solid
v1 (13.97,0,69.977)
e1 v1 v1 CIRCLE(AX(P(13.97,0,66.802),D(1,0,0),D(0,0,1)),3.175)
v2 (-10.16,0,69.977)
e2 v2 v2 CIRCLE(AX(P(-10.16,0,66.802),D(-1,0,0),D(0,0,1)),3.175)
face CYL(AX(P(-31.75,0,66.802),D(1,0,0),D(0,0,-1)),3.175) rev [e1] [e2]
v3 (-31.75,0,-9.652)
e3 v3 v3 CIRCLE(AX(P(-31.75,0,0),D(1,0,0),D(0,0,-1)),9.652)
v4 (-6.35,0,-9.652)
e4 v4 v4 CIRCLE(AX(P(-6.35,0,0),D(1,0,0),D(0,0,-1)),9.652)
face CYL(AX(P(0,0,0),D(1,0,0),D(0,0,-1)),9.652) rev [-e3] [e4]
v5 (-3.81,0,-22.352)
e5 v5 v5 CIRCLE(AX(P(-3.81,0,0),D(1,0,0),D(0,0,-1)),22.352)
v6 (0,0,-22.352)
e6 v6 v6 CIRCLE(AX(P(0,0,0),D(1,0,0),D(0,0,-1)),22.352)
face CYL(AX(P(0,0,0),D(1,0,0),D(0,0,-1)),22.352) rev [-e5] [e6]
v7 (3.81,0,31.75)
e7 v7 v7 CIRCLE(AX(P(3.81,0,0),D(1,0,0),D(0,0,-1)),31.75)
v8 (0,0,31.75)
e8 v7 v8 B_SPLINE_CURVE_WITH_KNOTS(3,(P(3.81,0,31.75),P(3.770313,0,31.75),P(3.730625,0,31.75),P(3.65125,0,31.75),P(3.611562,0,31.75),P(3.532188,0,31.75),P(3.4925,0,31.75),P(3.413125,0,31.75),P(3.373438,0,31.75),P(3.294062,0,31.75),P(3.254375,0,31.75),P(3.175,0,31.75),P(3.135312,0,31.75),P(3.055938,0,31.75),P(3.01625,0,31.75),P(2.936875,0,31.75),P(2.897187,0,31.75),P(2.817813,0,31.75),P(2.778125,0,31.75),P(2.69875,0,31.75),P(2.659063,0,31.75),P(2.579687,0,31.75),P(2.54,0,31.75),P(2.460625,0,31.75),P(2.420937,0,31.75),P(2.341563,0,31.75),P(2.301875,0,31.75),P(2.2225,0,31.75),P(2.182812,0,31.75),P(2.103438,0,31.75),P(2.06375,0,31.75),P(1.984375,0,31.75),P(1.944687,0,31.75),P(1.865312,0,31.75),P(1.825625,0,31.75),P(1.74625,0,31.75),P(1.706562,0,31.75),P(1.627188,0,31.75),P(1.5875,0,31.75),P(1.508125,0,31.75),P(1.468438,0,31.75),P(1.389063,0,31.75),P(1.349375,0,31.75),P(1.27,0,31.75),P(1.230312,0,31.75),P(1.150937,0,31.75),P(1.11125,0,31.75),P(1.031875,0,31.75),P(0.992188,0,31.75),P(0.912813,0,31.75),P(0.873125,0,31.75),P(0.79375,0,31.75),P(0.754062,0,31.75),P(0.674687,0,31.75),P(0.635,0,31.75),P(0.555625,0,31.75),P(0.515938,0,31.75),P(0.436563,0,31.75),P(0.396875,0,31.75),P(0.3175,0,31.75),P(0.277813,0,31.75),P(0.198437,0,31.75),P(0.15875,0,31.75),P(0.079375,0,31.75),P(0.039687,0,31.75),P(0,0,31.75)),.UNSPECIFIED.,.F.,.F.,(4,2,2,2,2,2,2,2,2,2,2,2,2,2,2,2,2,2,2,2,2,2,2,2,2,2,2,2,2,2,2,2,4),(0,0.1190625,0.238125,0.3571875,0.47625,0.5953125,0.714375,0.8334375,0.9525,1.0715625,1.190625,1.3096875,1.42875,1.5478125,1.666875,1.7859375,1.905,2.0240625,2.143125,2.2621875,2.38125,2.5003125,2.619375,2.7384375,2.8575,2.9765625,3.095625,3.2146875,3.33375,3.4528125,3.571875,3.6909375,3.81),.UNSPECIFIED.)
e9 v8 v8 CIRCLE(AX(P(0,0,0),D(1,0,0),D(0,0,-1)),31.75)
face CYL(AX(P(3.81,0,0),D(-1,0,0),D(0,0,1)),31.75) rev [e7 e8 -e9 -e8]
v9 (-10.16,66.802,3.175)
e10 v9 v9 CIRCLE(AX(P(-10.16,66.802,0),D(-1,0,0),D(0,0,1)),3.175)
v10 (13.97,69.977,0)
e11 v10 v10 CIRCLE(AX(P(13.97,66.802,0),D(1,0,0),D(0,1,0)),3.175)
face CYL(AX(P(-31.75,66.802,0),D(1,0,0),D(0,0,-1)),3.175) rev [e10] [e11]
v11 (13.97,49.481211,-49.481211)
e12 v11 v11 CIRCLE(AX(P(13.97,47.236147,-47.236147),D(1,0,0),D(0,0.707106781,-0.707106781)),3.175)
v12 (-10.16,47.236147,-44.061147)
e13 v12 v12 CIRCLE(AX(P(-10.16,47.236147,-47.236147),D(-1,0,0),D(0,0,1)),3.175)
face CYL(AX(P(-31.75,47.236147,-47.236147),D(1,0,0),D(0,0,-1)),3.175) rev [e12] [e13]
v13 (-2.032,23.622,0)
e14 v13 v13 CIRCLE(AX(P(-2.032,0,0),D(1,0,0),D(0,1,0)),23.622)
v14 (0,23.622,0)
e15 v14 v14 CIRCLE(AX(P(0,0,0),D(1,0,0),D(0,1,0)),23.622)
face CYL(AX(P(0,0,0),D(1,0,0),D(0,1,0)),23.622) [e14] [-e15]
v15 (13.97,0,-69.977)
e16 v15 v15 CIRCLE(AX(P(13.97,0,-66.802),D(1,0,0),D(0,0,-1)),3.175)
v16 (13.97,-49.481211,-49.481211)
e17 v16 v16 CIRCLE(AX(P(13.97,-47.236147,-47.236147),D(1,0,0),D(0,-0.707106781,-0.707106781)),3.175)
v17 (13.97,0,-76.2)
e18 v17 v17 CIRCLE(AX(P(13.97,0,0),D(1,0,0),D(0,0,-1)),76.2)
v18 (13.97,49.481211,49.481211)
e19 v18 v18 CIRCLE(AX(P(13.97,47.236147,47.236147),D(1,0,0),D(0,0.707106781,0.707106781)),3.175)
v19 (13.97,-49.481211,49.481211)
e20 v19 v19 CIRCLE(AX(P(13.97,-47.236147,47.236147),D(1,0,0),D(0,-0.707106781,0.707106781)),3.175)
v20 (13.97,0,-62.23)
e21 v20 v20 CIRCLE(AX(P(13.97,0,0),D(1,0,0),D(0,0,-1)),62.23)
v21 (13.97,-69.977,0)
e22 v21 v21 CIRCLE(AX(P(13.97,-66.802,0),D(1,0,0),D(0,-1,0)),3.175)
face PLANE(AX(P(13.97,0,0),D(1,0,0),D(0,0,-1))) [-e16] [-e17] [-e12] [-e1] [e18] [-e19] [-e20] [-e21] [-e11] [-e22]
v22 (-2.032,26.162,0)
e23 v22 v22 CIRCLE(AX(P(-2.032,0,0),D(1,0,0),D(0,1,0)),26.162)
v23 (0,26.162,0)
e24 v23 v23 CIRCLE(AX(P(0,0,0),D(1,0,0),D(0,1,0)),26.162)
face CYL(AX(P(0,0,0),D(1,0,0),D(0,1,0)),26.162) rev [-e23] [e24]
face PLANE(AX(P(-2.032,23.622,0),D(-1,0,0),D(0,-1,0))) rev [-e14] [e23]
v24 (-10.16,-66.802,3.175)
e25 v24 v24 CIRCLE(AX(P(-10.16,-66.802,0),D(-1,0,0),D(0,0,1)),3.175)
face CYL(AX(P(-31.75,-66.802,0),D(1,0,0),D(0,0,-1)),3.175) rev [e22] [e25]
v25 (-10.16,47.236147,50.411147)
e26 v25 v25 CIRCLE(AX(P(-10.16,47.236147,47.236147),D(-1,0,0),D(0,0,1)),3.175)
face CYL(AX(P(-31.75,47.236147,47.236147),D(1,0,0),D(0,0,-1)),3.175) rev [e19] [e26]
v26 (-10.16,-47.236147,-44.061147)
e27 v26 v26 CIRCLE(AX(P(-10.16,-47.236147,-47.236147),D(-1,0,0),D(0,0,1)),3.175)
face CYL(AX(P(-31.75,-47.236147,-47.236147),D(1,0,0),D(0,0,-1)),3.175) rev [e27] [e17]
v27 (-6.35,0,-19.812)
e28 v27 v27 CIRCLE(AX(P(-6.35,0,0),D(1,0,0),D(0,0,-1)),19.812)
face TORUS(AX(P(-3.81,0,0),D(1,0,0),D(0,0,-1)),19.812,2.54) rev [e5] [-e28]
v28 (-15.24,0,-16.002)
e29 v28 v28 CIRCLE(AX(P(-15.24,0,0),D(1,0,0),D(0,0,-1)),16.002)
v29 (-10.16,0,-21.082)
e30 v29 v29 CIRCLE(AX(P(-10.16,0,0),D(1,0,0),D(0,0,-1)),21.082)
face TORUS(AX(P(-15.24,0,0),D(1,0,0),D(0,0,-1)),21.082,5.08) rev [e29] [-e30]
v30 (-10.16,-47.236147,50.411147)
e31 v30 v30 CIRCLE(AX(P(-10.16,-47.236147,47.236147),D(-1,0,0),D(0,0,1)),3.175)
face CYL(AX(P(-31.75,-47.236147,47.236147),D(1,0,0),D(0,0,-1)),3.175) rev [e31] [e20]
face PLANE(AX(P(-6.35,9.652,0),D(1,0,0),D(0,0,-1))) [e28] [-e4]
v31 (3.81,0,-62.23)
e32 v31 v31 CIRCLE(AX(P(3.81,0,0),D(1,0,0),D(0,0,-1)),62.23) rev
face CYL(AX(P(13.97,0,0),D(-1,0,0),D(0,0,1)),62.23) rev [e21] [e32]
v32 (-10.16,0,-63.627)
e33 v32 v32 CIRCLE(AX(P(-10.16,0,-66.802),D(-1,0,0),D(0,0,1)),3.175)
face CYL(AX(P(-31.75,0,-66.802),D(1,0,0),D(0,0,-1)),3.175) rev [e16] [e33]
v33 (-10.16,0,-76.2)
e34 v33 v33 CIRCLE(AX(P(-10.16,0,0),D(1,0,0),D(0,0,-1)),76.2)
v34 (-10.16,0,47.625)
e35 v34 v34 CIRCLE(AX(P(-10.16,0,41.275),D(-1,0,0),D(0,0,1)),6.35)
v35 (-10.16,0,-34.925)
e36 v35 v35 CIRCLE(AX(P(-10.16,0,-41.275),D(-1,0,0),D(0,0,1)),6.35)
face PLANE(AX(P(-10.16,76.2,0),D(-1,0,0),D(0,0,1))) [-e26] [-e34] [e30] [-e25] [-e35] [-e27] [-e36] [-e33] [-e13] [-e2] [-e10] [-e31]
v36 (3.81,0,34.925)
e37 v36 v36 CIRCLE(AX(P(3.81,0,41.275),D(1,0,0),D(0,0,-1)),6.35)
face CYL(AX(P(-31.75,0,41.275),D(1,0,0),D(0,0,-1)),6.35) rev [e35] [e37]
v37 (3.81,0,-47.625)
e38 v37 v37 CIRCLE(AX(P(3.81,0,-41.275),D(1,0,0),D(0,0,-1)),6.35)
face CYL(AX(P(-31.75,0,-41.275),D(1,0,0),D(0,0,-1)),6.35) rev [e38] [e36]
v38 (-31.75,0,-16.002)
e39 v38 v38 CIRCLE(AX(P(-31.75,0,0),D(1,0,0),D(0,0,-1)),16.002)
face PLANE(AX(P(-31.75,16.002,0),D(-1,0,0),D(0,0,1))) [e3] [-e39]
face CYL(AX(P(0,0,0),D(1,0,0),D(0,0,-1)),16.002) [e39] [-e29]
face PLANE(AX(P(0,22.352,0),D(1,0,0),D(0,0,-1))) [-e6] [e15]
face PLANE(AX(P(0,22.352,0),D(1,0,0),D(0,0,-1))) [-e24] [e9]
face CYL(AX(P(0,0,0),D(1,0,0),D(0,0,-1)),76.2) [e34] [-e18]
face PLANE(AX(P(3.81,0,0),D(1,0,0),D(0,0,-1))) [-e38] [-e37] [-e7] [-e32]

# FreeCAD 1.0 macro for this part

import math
import FreeCAD as App
import Part
import Sketcher
Q = App.Units.Quantity


def add_polygon(sketch, points):
    """Adds a closed chain of lines whose ends are joined by coincident constraints."""
    first, n = sketch.GeometryCount, len(points)
    for a, b in zip(points, points[1:] + points[:1]):
        sketch.addGeometry(Part.LineSegment(App.Vector(*a, 0), App.Vector(*b, 0)), False)
    for i in range(n):
        sketch.addConstraint(Sketcher.Constraint("Coincident", first + i, 2, first + (i + 1) % n, 1))

doc = App.newDocument("Part")
body = doc.addObject("PartDesign::Body", "Body")

# Sketch on XY plane
sketch1 = body.newObject("Sketcher::SketchObject", "Sketch")
sketch1.AttachmentSupport = (doc.getObject("XY_Plane"), [""])
sketch1.MapMode = "FlatFace"
sketch1.addGeometry([
    Part.LineSegment(App.Vector(0, 76.2, 0), App.Vector(-10.2, 76.2, 0)),  # 0
    Part.LineSegment(App.Vector(-10.2, 76.2, 0), App.Vector(-10.2, 21.1, 0)),  # 1
    Part.ArcOfCircle(Part.Circle(App.Vector(-15.2, 21.1, 0), App.Vector(0, 0, 1), 5.1), math.radians(-90), math.radians(0)),  # 2
    Part.LineSegment(App.Vector(-15.2, 16, 0), App.Vector(-31.8, 16, 0)),  # 3
    Part.LineSegment(App.Vector(-31.8, 16, 0), App.Vector(-31.8, 9.7, 0)),  # 4
    Part.LineSegment(App.Vector(-31.8, 9.7, 0), App.Vector(-6.3, 9.7, 0)),  # 5
    Part.LineSegment(App.Vector(-6.3, 9.7, 0), App.Vector(-6.3, 19.8, 0)),  # 6
    Part.ArcOfCircle(Part.Circle(App.Vector(-3.8, 19.8, 0), App.Vector(0, 0, 1), 2.5), math.radians(90), math.radians(180)),  # 7
    Part.LineSegment(App.Vector(-3.8, 22.4, 0), App.Vector(0, 22.4, 0)),  # 8
    Part.LineSegment(App.Vector(0, 22.4, 0), App.Vector(0, 76.2, 0)),  # 9
], False)
sketch1.addConstraint([
    Sketcher.Constraint("Coincident", 0, 2, 1, 1),
    Sketcher.Constraint("Tangent", 1, 2, 2, 2),
    Sketcher.Constraint("Tangent", 2, 1, 3, 1),
    Sketcher.Constraint("Coincident", 3, 2, 4, 1),
    Sketcher.Constraint("Coincident", 4, 2, 5, 1),
    Sketcher.Constraint("Coincident", 5, 2, 6, 1),
    Sketcher.Constraint("Tangent", 6, 2, 7, 2),
    Sketcher.Constraint("Tangent", 7, 1, 8, 1),
    Sketcher.Constraint("Coincident", 8, 2, 9, 1),
    Sketcher.Constraint("Coincident", 9, 2, 0, 1),
    Sketcher.Constraint("Horizontal", 0),
    Sketcher.Constraint("Vertical", 1),
    Sketcher.Constraint("Horizontal", 3),
    Sketcher.Constraint("Vertical", 4),
    Sketcher.Constraint("Horizontal", 5),
    Sketcher.Constraint("Vertical", 6),
    Sketcher.Constraint("Horizontal", 8),
    Sketcher.Constraint("Vertical", 9),
    Sketcher.Constraint("PointOnObject", 8, 2, -2),
    Sketcher.Constraint("Equal", 0, 6),
    Sketcher.Constraint("Radius", 2, Q("0.2 in")),
    Sketcher.Constraint("Radius", 7, Q("0.1 in")),
    Sketcher.Constraint("DistanceX", 5, 1, 5, 2, Q("1 in")),
    Sketcher.Constraint("DistanceX", 0, 2, 0, 1, Q("0.4 in")),
    Sketcher.Constraint("DistanceY", -1, 1, 0, 2, Q("3 in")),
    Sketcher.Constraint("DistanceX", 3, 2, 3, 1, Q("0.65 in")),
    Sketcher.Constraint("DistanceY", 1, 2, 1, 1, Q("2.17 in")),
    Sketcher.Constraint("DistanceY", 4, 2, 4, 1, Q("0.25 in")),
])
revolution = body.newObject("PartDesign::Revolution", "Revolution")
revolution.Profile = sketch1
revolution.ReferenceAxis = (sketch1, ["H_Axis"])
revolution.Angle = 360

# Sketch on XY plane
sketch2 = body.newObject("Sketcher::SketchObject", "Sketch001")
sketch2.AttachmentSupport = (doc.getObject("XY_Plane"), [""])
sketch2.MapMode = "FlatFace"
add_polygon(sketch2, [(-2, 26.2), (-2, 23.6), (0, 23.6), (0, 26.2)])  # lines 0-3
sketch2.addConstraint([
    Sketcher.Constraint("Vertical", 0),
    Sketcher.Constraint("Horizontal", 1),
    Sketcher.Constraint("Vertical", 2),
    Sketcher.Constraint("Horizontal", 3),
    Sketcher.Constraint("PointOnObject", 1, 2, -2),
    Sketcher.Constraint("DistanceY", 0, 2, 0, 1, Q("0.1 in")),
    Sketcher.Constraint("DistanceX", 1, 1, 1, 2, Q("0.08 in")),
    Sketcher.Constraint("DistanceY", -1, 1, 0, 2, Q("0.93 in")),
])
groove = body.newObject("PartDesign::Groove", "Groove")
groove.Profile = sketch2
groove.ReferenceAxis = (sketch2, ["H_Axis"])
groove.Angle = 360

# Sketch on YZ plane
sketch3 = body.newObject("Sketcher::SketchObject", "Sketch002")
sketch3.AttachmentSupport = (doc.getObject("YZ_Plane"), [""])
sketch3.MapMode = "FlatFace"
sketch3.addGeometry([
    Part.Circle(App.Vector(0, 0, 0), App.Vector(0, 0, 1), 76),
    Part.Circle(App.Vector(0, 0, 0), App.Vector(0, 0, 1), 32),
], False)
sketch3.addConstraint([
    Sketcher.Constraint("Coincident", 0, 3, -1, 1),
    Sketcher.Constraint("Coincident", 1, 3, -1, 1),
    Sketcher.Constraint("Diameter", 0, Q("6 in")),
    Sketcher.Constraint("Diameter", 1, Q("2.5 in")),
])
pad1 = body.newObject("PartDesign::Pad", "Pad")
pad1.Profile = sketch3
pad1.Length = Q("0.15 in")

# Sketch on YZ plane
sketch4 = body.newObject("Sketcher::SketchObject", "Sketch003")
sketch4.AttachmentSupport = (doc.getObject("YZ_Plane"), [""])
sketch4.MapMode = "FlatFace"
sketch4.AttachmentOffset = App.Placement(App.Vector(0, 0, 0.15 * 25.4), App.Rotation())
sketch4.addGeometry([
    Part.Circle(App.Vector(0, 0, 0), App.Vector(0, 0, 1), 76),
    Part.Circle(App.Vector(0, 0, 0), App.Vector(0, 0, 1), 62),
], False)
sketch4.addConstraint([
    Sketcher.Constraint("Coincident", 0, 3, -1, 1),
    Sketcher.Constraint("Coincident", 1, 3, -1, 1),
    Sketcher.Constraint("Diameter", 0, Q("6 in")),
    Sketcher.Constraint("Diameter", 1, Q("4.9 in")),
])
pad2 = body.newObject("PartDesign::Pad", "Pad001")
pad2.Profile = sketch4
pad2.Length = Q("0.4 in")

# Sketch on YZ plane
sketch5 = body.newObject("Sketcher::SketchObject", "Sketch004")
sketch5.AttachmentSupport = (doc.getObject("YZ_Plane"), [""])
sketch5.MapMode = "FlatFace"
sketch5.addGeometry([
    Part.Circle(App.Vector(0, -41, 0), App.Vector(0, 0, 1), 6),
    Part.Circle(App.Vector(0, 41, 0), App.Vector(0, 0, 1), 6),
], False)
sketch5.addConstraint([
    Sketcher.Constraint("Equal", 0, 1),
    Sketcher.Constraint("Symmetric", 0, 3, 1, 3, -1, 1),
    Sketcher.Constraint("PointOnObject", 0, 3, -2),
    Sketcher.Constraint("Diameter", 0, Q("0.5 in")),
    Sketcher.Constraint("DistanceY", 0, 3, 1, 3, Q("3.25 in")),
])
pocket1 = body.newObject("PartDesign::Pocket", "Pocket")
pocket1.Profile = sketch5
pocket1.Type = "ThroughAll"
pocket1.Midplane = True

# Sketch on YZ plane
sketch6 = body.newObject("Sketcher::SketchObject", "Sketch005")
sketch6.AttachmentSupport = (doc.getObject("YZ_Plane"), [""])
sketch6.MapMode = "FlatFace"
sketch6.addGeometry(Part.Circle(App.Vector(0, -66.8, 0), App.Vector(0, 0, 1), 3.2), False)
sketch6.addConstraint([
    Sketcher.Constraint("PointOnObject", 0, 3, -2),
    Sketcher.Constraint("Diameter", 0, Q("0.25 in")),
    Sketcher.Constraint("DistanceY", 0, 3, -1, 1, Q("2.63 in")),
])
pocket2 = body.newObject("PartDesign::Pocket", "Pocket001")
pocket2.Profile = sketch6
pocket2.Length = 226.685936
pocket2.Midplane = True
doc.recompute()

polarpattern = body.newObject("PartDesign::PolarPattern", "PolarPattern")
polarpattern.Originals = [pocket2]
polarpattern.Axis = (doc.getObject("X_Axis"), [""])
polarpattern.Angle = 360
polarpattern.Occurrences = 8
body.Tip = polarpattern

doc.recompute()
